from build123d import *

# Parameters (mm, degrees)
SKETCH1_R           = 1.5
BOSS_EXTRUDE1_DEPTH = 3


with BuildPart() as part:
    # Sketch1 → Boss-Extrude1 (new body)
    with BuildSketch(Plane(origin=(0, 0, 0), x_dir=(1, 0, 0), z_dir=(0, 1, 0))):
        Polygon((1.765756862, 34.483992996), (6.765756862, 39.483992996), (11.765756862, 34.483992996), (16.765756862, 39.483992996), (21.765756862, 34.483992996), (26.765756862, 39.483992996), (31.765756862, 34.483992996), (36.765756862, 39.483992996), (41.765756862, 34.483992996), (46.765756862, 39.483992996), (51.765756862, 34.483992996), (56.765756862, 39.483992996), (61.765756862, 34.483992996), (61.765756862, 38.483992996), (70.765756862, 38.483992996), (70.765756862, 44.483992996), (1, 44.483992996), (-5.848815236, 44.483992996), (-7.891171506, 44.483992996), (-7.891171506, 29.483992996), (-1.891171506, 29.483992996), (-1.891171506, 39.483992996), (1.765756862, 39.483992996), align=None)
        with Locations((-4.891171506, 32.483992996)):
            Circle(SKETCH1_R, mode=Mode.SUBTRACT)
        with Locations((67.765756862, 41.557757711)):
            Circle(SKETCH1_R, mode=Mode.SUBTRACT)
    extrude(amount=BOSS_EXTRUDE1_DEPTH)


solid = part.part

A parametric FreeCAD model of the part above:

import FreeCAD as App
import Part
import Sketcher

V = App.Vector

doc = App.newDocument("Part")
body = doc.addObject("PartDesign::Body", "Body")

sketch1 = doc.addObject("Sketcher::SketchObject", "Sketch")
body.addObject(sketch1)
sketch1.AttachmentSupport = (doc.XZ_Plane, [""])
sketch1.MapMode = "FlatFace"
sketch1.addGeometry(Part.LineSegment(V(1.765757, -34.483993, 0), V(6.765757, -39.483993, 0)), False)
sketch1.addGeometry(Part.LineSegment(V(6.765757, -39.483993, 0), V(11.765757, -34.483993, 0)), False)
sketch1.addGeometry(Part.LineSegment(V(11.765757, -34.483993, 0), V(16.765757, -39.483993, 0)), False)
sketch1.addGeometry(Part.LineSegment(V(16.765757, -39.483993, 0), V(21.765757, -34.483993, 0)), False)
sketch1.addGeometry(Part.LineSegment(V(21.765757, -34.483993, 0), V(26.765757, -39.483993, 0)), False)
sketch1.addGeometry(Part.LineSegment(V(26.765757, -39.483993, 0), V(31.765757, -34.483993, 0)), False)
sketch1.addGeometry(Part.LineSegment(V(31.765757, -34.483993, 0), V(36.765757, -39.483993, 0)), False)
sketch1.addGeometry(Part.LineSegment(V(36.765757, -39.483993, 0), V(41.765757, -34.483993, 0)), False)
sketch1.addGeometry(Part.LineSegment(V(41.765757, -34.483993, 0), V(46.765757, -39.483993, 0)), False)
sketch1.addGeometry(Part.LineSegment(V(46.765757, -39.483993, 0), V(51.765757, -34.483993, 0)), False)
sketch1.addGeometry(Part.LineSegment(V(51.765757, -34.483993, 0), V(56.765757, -39.483993, 0)), False)
sketch1.addGeometry(Part.LineSegment(V(56.765757, -39.483993, 0), V(61.765757, -34.483993, 0)), False)
sketch1.addGeometry(Part.LineSegment(V(61.765757, -34.483993, 0), V(61.765757, -38.483993, 0)), False)
sketch1.addGeometry(Part.LineSegment(V(61.765757, -38.483993, 0), V(70.765757, -38.483993, 0)), False)
sketch1.addGeometry(Part.LineSegment(V(70.765757, -38.483993, 0), V(70.765757, -44.483993, 0)), False)
sketch1.addGeometry(Part.LineSegment(V(70.765757, -44.483993, 0), V(-7.891172, -44.483993, 0)), False)
sketch1.addGeometry(Part.LineSegment(V(-7.891172, -44.483993, 0), V(-7.891172, -29.483993, 0)), False)
sketch1.addGeometry(Part.LineSegment(V(-7.891172, -29.483993, 0), V(-1.891172, -29.483993, 0)), False)
sketch1.addGeometry(Part.LineSegment(V(-1.891172, -29.483993, 0), V(-1.891172, -39.483993, 0)), False)
sketch1.addGeometry(Part.LineSegment(V(-1.891172, -39.483993, 0), V(1.765757, -39.483993, 0)), False)
sketch1.addGeometry(Part.LineSegment(V(1.765757, -39.483993, 0), V(1.765757, -34.483993, 0)), False)
sketch1.addGeometry(Part.Circle(V(-4.891172, -32.483993, 0), V(0, 0, 1), 1.5), False)
sketch1.addGeometry(Part.Circle(V(67.765757, -41.557758, 0), V(0, 0, 1), 1.5), False)
sketch1.addConstraint(Sketcher.Constraint("Coincident", 0, 2, 1, 1))
sketch1.addConstraint(Sketcher.Constraint("Coincident", 1, 2, 2, 1))
sketch1.addConstraint(Sketcher.Constraint("Coincident", 2, 2, 3, 1))
sketch1.addConstraint(Sketcher.Constraint("Coincident", 3, 2, 4, 1))
sketch1.addConstraint(Sketcher.Constraint("Coincident", 4, 2, 5, 1))
sketch1.addConstraint(Sketcher.Constraint("Coincident", 5, 2, 6, 1))
sketch1.addConstraint(Sketcher.Constraint("Coincident", 6, 2, 7, 1))
sketch1.addConstraint(Sketcher.Constraint("Coincident", 7, 2, 8, 1))
sketch1.addConstraint(Sketcher.Constraint("Coincident", 8, 2, 9, 1))
sketch1.addConstraint(Sketcher.Constraint("Coincident", 9, 2, 10, 1))
sketch1.addConstraint(Sketcher.Constraint("Coincident", 10, 2, 11, 1))
sketch1.addConstraint(Sketcher.Constraint("Coincident", 11, 2, 12, 1))
sketch1.addConstraint(Sketcher.Constraint("Coincident", 12, 2, 13, 1))
sketch1.addConstraint(Sketcher.Constraint("Coincident", 13, 2, 14, 1))
sketch1.addConstraint(Sketcher.Constraint("Coincident", 14, 2, 15, 1))
sketch1.addConstraint(Sketcher.Constraint("Coincident", 15, 2, 16, 1))
sketch1.addConstraint(Sketcher.Constraint("Coincident", 16, 2, 17, 1))
sketch1.addConstraint(Sketcher.Constraint("Coincident", 17, 2, 18, 1))
sketch1.addConstraint(Sketcher.Constraint("Coincident", 18, 2, 19, 1))
sketch1.addConstraint(Sketcher.Constraint("Coincident", 19, 2, 20, 1))
sketch1.addConstraint(Sketcher.Constraint("Coincident", 20, 2, 0, 1))
sketch1.addConstraint(Sketcher.Constraint("Vertical", 12))
sketch1.addConstraint(Sketcher.Constraint("Horizontal", 13))
sketch1.addConstraint(Sketcher.Constraint("Vertical", 14))
sketch1.addConstraint(Sketcher.Constraint("Horizontal", 15))
sketch1.addConstraint(Sketcher.Constraint("Vertical", 16))
sketch1.addConstraint(Sketcher.Constraint("Horizontal", 17))
sketch1.addConstraint(Sketcher.Constraint("Vertical", 18))
sketch1.addConstraint(Sketcher.Constraint("Horizontal", 19))
sketch1.addConstraint(Sketcher.Constraint("Vertical", 20))
sketch1.addConstraint(Sketcher.Constraint("Equal", 21, 22))
sketch1.addConstraint(Sketcher.Constraint("Perpendicular", 0, 1))
sketch1.addConstraint(Sketcher.Constraint("Perpendicular", 1, 2))
sketch1.addConstraint(Sketcher.Constraint("Perpendicular", 2, 3))
sketch1.addConstraint(Sketcher.Constraint("Perpendicular", 3, 4))
sketch1.addConstraint(Sketcher.Constraint("Perpendicular", 4, 5))
sketch1.addConstraint(Sketcher.Constraint("Perpendicular", 5, 6))
sketch1.addConstraint(Sketcher.Constraint("Perpendicular", 6, 7))
sketch1.addConstraint(Sketcher.Constraint("Perpendicular", 7, 8))
sketch1.addConstraint(Sketcher.Constraint("Perpendicular", 8, 9))
sketch1.addConstraint(Sketcher.Constraint("Perpendicular", 9, 10))
sketch1.addConstraint(Sketcher.Constraint("Perpendicular", 10, 11))
sketch1.addConstraint(Sketcher.Constraint("Horizontal", 0, 2, 2, 2))
sketch1.addConstraint(Sketcher.Constraint("Horizontal", 1, 2, 3, 2))
sketch1.addConstraint(Sketcher.Constraint("Horizontal", 2, 2, 4, 2))
sketch1.addConstraint(Sketcher.Constraint("Horizontal", 3, 2, 5, 2))
sketch1.addConstraint(Sketcher.Constraint("Horizontal", 4, 2, 6, 2))
sketch1.addConstraint(Sketcher.Constraint("Horizontal", 5, 2, 7, 2))
sketch1.addConstraint(Sketcher.Constraint("Horizontal", 6, 2, 8, 2))
sketch1.addConstraint(Sketcher.Constraint("Horizontal", 7, 2, 9, 2))
sketch1.addConstraint(Sketcher.Constraint("Horizontal", 8, 2, 10, 2))
sketch1.addConstraint(Sketcher.Constraint("Horizontal", 9, 2, 11, 2))
sketch1.addConstraint(Sketcher.Constraint("Horizontal", 10, 2, 18, 2))
sketch1.addConstraint(Sketcher.Constraint("Horizontal", 11, 2, 20, 2))
sketch1.addConstraint(Sketcher.Constraint("Equal", 17, 14))
sketch1.addConstraint(Sketcher.Constraint("Equal", 0, 1))
sketch1.addConstraint(Sketcher.Constraint("Diameter", 21, 3.0))
sketch1.addConstraint(Sketcher.Constraint("DistanceX", 13, 1, 13, 2, 9.0))
sketch1.addConstraint(Sketcher.Constraint("DistanceX", 17, 1, 17, 2, 6.0))
sketch1.addConstraint(Sketcher.Constraint("DistanceY", 12, 2, 12, 1, 4.0))
sketch1.addConstraint(Sketcher.Constraint("DistanceY", 16, 1, 16, 2, 15.0))
sketch1.addConstraint(Sketcher.Constraint("DistanceY", 18, 2, 18, 1, 10.0))
sketch1.addConstraint(Sketcher.Constraint("DistanceY", 0, 2, 21, 3, 7.0))
sketch1.addConstraint(Sketcher.Constraint("DistanceX", 0, 2, 22, 3, 61.0))
sketch1.addConstraint(Sketcher.Constraint("DistanceX", 15, 2, 21, 3, 3.0))
sketch1.addConstraint(Sketcher.Constraint("DistanceX", 15, 2, 15, 1, 78.656928))
sketch1.addConstraint(Sketcher.Constraint("DistanceX", 21, 3, -1, 1, 4.891172))
sketch1.addConstraint(Sketcher.Constraint("DistanceY", 21, 3, -1, 1, 32.483993))
sketch1.addConstraint(Sketcher.Constraint("DistanceY", 22, 3, -1, 1, 41.557758))
pad1 = doc.addObject("PartDesign::Pad", "Pad")
body.addObject(pad1)
pad1.Profile = sketch1
pad1.Length = 3
pad1.Reversed = True

doc.recompute()
